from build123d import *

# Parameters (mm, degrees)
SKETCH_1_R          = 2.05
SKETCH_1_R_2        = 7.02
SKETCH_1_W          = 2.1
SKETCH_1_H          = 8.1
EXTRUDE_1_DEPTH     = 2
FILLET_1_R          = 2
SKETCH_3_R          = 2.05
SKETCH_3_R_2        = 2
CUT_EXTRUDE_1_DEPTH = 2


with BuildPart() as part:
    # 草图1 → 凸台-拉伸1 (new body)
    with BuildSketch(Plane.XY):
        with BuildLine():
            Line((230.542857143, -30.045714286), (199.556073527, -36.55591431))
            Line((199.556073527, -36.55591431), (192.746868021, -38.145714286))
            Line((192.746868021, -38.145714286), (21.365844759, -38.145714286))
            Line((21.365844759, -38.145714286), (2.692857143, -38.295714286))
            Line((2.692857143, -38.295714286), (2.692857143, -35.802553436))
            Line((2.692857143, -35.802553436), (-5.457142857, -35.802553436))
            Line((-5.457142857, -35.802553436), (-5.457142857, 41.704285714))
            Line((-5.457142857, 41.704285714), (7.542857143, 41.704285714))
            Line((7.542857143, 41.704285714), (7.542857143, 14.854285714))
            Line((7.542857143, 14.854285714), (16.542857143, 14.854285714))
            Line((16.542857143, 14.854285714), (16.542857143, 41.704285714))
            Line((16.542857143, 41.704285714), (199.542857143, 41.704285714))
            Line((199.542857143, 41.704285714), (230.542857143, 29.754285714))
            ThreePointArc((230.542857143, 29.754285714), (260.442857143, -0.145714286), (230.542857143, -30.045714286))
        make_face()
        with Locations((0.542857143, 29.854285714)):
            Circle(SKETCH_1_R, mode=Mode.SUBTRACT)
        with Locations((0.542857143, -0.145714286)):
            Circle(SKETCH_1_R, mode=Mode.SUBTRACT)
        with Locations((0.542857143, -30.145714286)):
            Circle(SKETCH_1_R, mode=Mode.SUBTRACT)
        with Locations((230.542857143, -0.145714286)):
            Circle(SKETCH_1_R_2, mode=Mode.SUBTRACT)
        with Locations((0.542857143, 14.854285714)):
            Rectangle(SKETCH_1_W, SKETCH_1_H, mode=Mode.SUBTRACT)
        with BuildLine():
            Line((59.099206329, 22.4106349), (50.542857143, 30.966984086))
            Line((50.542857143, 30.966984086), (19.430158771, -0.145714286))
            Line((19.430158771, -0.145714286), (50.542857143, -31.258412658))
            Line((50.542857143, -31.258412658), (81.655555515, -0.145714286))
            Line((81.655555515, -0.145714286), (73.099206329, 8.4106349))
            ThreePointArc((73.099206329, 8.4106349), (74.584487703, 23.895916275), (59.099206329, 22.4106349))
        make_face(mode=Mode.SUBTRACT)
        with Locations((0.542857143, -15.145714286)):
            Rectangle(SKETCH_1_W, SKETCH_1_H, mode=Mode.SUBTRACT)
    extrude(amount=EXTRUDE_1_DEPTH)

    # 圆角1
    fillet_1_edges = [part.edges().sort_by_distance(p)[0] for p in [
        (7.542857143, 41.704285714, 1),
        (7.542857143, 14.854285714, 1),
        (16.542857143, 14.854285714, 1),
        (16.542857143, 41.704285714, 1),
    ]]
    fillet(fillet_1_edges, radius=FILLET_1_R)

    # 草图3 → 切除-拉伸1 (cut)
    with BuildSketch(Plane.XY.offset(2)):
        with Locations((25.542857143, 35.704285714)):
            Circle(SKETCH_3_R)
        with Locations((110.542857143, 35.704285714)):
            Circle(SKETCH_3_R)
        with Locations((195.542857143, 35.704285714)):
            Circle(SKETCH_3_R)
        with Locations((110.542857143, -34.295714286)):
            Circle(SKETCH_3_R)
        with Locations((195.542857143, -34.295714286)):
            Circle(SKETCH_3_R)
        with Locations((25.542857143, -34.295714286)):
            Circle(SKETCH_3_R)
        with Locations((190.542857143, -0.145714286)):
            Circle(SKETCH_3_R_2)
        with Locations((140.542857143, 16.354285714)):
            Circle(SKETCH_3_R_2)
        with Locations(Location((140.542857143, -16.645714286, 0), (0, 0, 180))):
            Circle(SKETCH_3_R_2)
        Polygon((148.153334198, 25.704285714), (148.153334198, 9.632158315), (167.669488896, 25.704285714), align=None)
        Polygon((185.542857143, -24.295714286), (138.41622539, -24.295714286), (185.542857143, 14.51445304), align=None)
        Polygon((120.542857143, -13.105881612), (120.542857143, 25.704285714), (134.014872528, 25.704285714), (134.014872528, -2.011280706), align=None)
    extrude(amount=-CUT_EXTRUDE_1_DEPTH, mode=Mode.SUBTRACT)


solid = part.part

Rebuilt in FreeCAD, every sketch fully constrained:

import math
import FreeCAD as App
import Part
import Sketcher


def edges_at(feature, points):
    """Names of the edges that pass closest to the given points."""
    edges = feature.Shape.Edges
    near = lambda p: min(range(len(edges)), key=lambda i: edges[i].distToShape(Part.Vertex(*p))[0])
    return sorted({f"Edge{near(p) + 1}" for p in points})


def add_polygon(sketch, points):
    """Adds a closed chain of lines whose ends are joined by coincident constraints."""
    first, n = sketch.GeometryCount, len(points)
    for a, b in zip(points, points[1:] + points[:1]):
        sketch.addGeometry(Part.LineSegment(App.Vector(*a, 0), App.Vector(*b, 0)), False)
    for i in range(n):
        sketch.addConstraint(Sketcher.Constraint("Coincident", first + i, 2, first + (i + 1) % n, 1))

doc = App.newDocument("Part")
body = doc.addObject("PartDesign::Body", "Body")

# Sketch on XY plane
sketch1 = body.newObject("Sketcher::SketchObject", "Sketch")
sketch1.AttachmentSupport = (doc.getObject("XY_Plane"), [""])
sketch1.MapMode = "FlatFace"
sketch1.addGeometry(Part.LineSegment(App.Vector(199.6, -36.6, 0), App.Vector(230.5, -30, 0)), False)  # 0
sketch1.addGeometry(Part.ArcOfCircle(Part.Circle(App.Vector(230.5, -0.1, 0), App.Vector(0, 0, 1), 29.9), math.radians(-90), math.radians(90)), False)  # 1
sketch1.addGeometry(Part.LineSegment(App.Vector(230.5, 29.8, 0), App.Vector(199.5, 41.7, 0)), False)  # 2
sketch1.addGeometry(Part.LineSegment(App.Vector(199.5, 41.7, 0), App.Vector(16.5, 41.7, 0)), False)  # 3
sketch1.addGeometry(Part.LineSegment(App.Vector(16.5, 41.7, 0), App.Vector(16.5, 14.9, 0)), False)  # 4
sketch1.addGeometry(Part.LineSegment(App.Vector(16.5, 14.9, 0), App.Vector(7.5, 14.9, 0)), False)  # 5
sketch1.addGeometry(Part.LineSegment(App.Vector(7.5, 14.9, 0), App.Vector(7.5, 41.7, 0)), False)  # 6
sketch1.addGeometry(Part.LineSegment(App.Vector(7.5, 41.7, 0), App.Vector(-5.5, 41.7, 0)), False)  # 7
sketch1.addGeometry(Part.LineSegment(App.Vector(-5.5, 41.7, 0), App.Vector(-5.5, -35.8, 0)), False)  # 8
sketch1.addGeometry(Part.LineSegment(App.Vector(-5.5, -35.8, 0), App.Vector(2.7, -35.8, 0)), False)  # 9
sketch1.addGeometry(Part.LineSegment(App.Vector(2.7, -35.8, 0), App.Vector(2.7, -38.3, 0)), False)  # 10
sketch1.addGeometry(Part.LineSegment(App.Vector(2.7, -38.3, 0), App.Vector(21.4, -38.1, 0)), False)  # 11
sketch1.addGeometry(Part.LineSegment(App.Vector(21.4, -38.1, 0), App.Vector(192.7, -38.1, 0)), False)  # 12
sketch1.addGeometry(Part.LineSegment(App.Vector(192.7, -38.1, 0), App.Vector(199.6, -36.6, 0)), False)  # 13
sketch1.addGeometry(Part.Circle(App.Vector(0.5, -30.1, 0), App.Vector(0, 0, 1), 2), False)  # 14
add_polygon(sketch1, [(-0.5, -19.2), (-0.5, -11.1), (1.6, -11.1), (1.6, -19.2)])  # lines 15-18
sketch1.addGeometry(Part.Circle(App.Vector(230.5, -0.1, 0), App.Vector(0, 0, 1), 7), False)  # 19
sketch1.addGeometry(Part.ArcOfCircle(Part.Circle(App.Vector(67.5, 16.8, 0), App.Vector(0, 0, 1), 10.1), math.radians(-56), math.radians(146)), False)  # 20
sketch1.addGeometry(Part.LineSegment(App.Vector(73.1, 8.4, 0), App.Vector(81.7, -0.1, 0)), False)  # 21
sketch1.addGeometry(Part.LineSegment(App.Vector(81.7, -0.1, 0), App.Vector(50.5, -31.3, 0)), False)  # 22
sketch1.addGeometry(Part.LineSegment(App.Vector(50.5, -31.3, 0), App.Vector(19.4, -0.1, 0)), False)  # 23
sketch1.addGeometry(Part.LineSegment(App.Vector(19.4, -0.1, 0), App.Vector(50.5, 31, 0)), False)  # 24
sketch1.addGeometry(Part.LineSegment(App.Vector(50.5, 31, 0), App.Vector(59.1, 22.4, 0)), False)  # 25
sketch1.addGeometry(Part.Circle(App.Vector(0.5, -0.1, 0), App.Vector(0, 0, 1), 2), False)  # 26
add_polygon(sketch1, [(-0.5, 10.8), (-0.5, 18.9), (1.6, 18.9), (1.6, 10.8)])  # lines 27-30
sketch1.addGeometry(Part.Circle(App.Vector(0.5, 29.9, 0), App.Vector(0, 0, 1), 2), False)  # 31
sketch1.addConstraint([
    Sketcher.Constraint("Coincident", 0, 2, 1, 1),
    Sketcher.Constraint("Coincident", 1, 2, 2, 1),
    Sketcher.Constraint("Coincident", 2, 2, 3, 1),
    Sketcher.Constraint("Coincident", 3, 2, 4, 1),
    Sketcher.Constraint("Coincident", 4, 2, 5, 1),
    Sketcher.Constraint("Coincident", 5, 2, 6, 1),
    Sketcher.Constraint("Coincident", 6, 2, 7, 1),
    Sketcher.Constraint("Coincident", 7, 2, 8, 1),
    Sketcher.Constraint("Coincident", 8, 2, 9, 1),
    Sketcher.Constraint("Coincident", 9, 2, 10, 1),
    Sketcher.Constraint("Coincident", 10, 2, 11, 1),
    Sketcher.Constraint("Coincident", 11, 2, 12, 1),
    Sketcher.Constraint("Coincident", 12, 2, 13, 1),
    Sketcher.Constraint("Coincident", 13, 2, 0, 1),
    Sketcher.Constraint("Coincident", 20, 1, 21, 1),
    Sketcher.Constraint("Coincident", 21, 2, 22, 1),
    Sketcher.Constraint("Coincident", 22, 2, 23, 1),
    Sketcher.Constraint("Coincident", 23, 2, 24, 1),
    Sketcher.Constraint("Coincident", 24, 2, 25, 1),
    Sketcher.Constraint("Coincident", 25, 2, 20, 2),
    Sketcher.Constraint("Horizontal", 3),
    Sketcher.Constraint("Vertical", 4),
    Sketcher.Constraint("Horizontal", 5),
    Sketcher.Constraint("Vertical", 6),
    Sketcher.Constraint("Horizontal", 7),
    Sketcher.Constraint("Vertical", 8),
    Sketcher.Constraint("Horizontal", 9),
    Sketcher.Constraint("Vertical", 10),
    Sketcher.Constraint("Horizontal", 12),
    Sketcher.Constraint("Vertical", 15),
    Sketcher.Constraint("Horizontal", 16),
    Sketcher.Constraint("Vertical", 17),
    Sketcher.Constraint("Horizontal", 18),
    Sketcher.Constraint("Vertical", 27),
    Sketcher.Constraint("Horizontal", 28),
    Sketcher.Constraint("Vertical", 29),
    Sketcher.Constraint("Horizontal", 30),
    Sketcher.Constraint("Coincident", 19, 3, 1, 3),
    Sketcher.Constraint("Equal", 14, 26),
    Sketcher.Constraint("Equal", 26, 31),
    Sketcher.Constraint("Perpendicular", 21, 22),
    Sketcher.Constraint("Perpendicular", 22, 23),
    Sketcher.Constraint("Perpendicular", 23, 24),
    Sketcher.Constraint("Perpendicular", 24, 25),
    Sketcher.Constraint("Horizontal", 19, 3, 26, 3),
    Sketcher.Constraint("Horizontal", 3, 2, 6, 2),
    Sketcher.Constraint("Horizontal", 26, 3, 21, 2),
    Sketcher.Constraint("Horizontal", 21, 2, 23, 2),
    Sketcher.Constraint("Vertical", 14, 3, 26, 3),
    Sketcher.Constraint("Vertical", 26, 3, 31, 3),
    Sketcher.Constraint("Vertical", 19, 3, 0, 2),
    Sketcher.Constraint("Vertical", 0, 2, 1, 2),
    Sketcher.Constraint("Vertical", 22, 2, 24, 2),
    Sketcher.Constraint("Vertical", 18, 2, 27, 2),
    Sketcher.Constraint("Vertical", 17, 2, 28, 2),
    Sketcher.Constraint("Equal", 17, 27),
    Sketcher.Constraint("Equal", 22, 23),
    Sketcher.Constraint("Equal", 21, 25),
    Sketcher.Constraint("Diameter", 14, 4.1),
    Sketcher.Constraint("Radius", 1, 29.9),
    Sketcher.Constraint("Diameter", 19, 14.04),
    Sketcher.Constraint("DistanceX", 3, 2, 3, 1, 183.0),
    Sketcher.Constraint("DistanceX", 5, 2, 5, 1, 9.0),
    Sketcher.Constraint("DistanceX", 7, 2, 7, 1, 13.0),
    Sketcher.Constraint("Distance", 22, 44.0),
    Sketcher.Constraint("DistanceX", 16, 1, 16, 2, 2.1),
    Sketcher.Constraint("DistanceY", 15, 1, 15, 2, 8.1),
    Sketcher.Constraint("DistanceX", 14, 3, 1, 3, 230.0),
    Sketcher.Constraint("DistanceY", 14, 3, 1, 3, 30.0),
    Sketcher.Constraint("DistanceY", 26, 3, 31, 3, 30.0),
    Sketcher.Constraint("DistanceX", 2, 2, 1, 2, 31.0),
    Sketcher.Constraint("DistanceY", 26, 3, 4, 2, 15.0),
    Sketcher.Constraint("DistanceY", 11, 2, 14, 3, 8.0),
    Sketcher.Constraint("DistanceX", 3, 2, 24, 2, 34.0),
    Sketcher.Constraint("DistanceX", 25, 2, 20, 1, 14.0),
    Sketcher.Constraint("DistanceX", 9, 1, 9, 2, 8.15),
    Sketcher.Constraint("DistanceY", 4, 2, 4, 1, 26.85),
    Sketcher.Constraint("DistanceX", 15, 2, 9, 2, 3.2),
    Sketcher.Constraint("DistanceY", 27, 2, 7, 2, 22.8),
    Sketcher.Constraint("DistanceY", 10, 2, 14, 3, 8.15),
    Sketcher.Constraint("DistanceY", 15, 2, 26, 3, 10.95),
    Sketcher.Constraint("Radius", 20, 10.083333),
    Sketcher.Constraint("DistanceY", 8, 2, 8, 1, 77.506839),
    Sketcher.Constraint("DistanceY", 12, 2, 13, 2, 1.5898),
    Sketcher.Constraint("Distance", 11, 18.67359),
    Sketcher.Constraint("DistanceX", 12, 1, 12, 2, 171.381023),
    Sketcher.Constraint("DistanceX", -1, 1, 12, 2, 192.746868),
    Sketcher.Constraint("Distance", 0, 31.663283),
    Sketcher.Constraint("DistanceY", 1, 3, -1, 1, 0.145714),
])
pad1 = body.newObject("PartDesign::Pad", "Pad")
pad1.Profile = sketch1
pad1.Length = 2
doc.recompute()

fillet = body.newObject("PartDesign::Fillet", "Fillet")
fillet.Base = (pad1, edges_at(pad1, [
    (7.543, 41.704, 1),
    (7.543, 14.854, 1),
    (16.543, 14.854, 1),
    (16.543, 41.704, 1),
]))
fillet.Radius = 2

# Sketch on XY plane
sketch2 = body.newObject("Sketcher::SketchObject", "Sketch001")
sketch2.AttachmentSupport = (doc.getObject("XY_Plane"), [""])
sketch2.MapMode = "FlatFace"
sketch2.AttachmentOffset = App.Placement(App.Vector(0, 0, 2), App.Rotation())
sketch2.addGeometry(Part.Circle(App.Vector(25.5, 35.7, 0), App.Vector(0, 0, 1), 2), False)  # 0
sketch2.addGeometry(Part.Circle(App.Vector(110.5, 35.7, 0), App.Vector(0, 0, 1), 2), False)  # 1
sketch2.addGeometry(Part.Circle(App.Vector(195.5, 35.7, 0), App.Vector(0, 0, 1), 2), False)  # 2
sketch2.addGeometry(Part.Circle(App.Vector(110.5, -34.3, 0), App.Vector(0, 0, 1), 2), False)  # 3
sketch2.addGeometry(Part.Circle(App.Vector(195.5, -34.3, 0), App.Vector(0, 0, 1), 2), False)  # 4
sketch2.addGeometry(Part.Circle(App.Vector(25.5, -34.3, 0), App.Vector(0, 0, 1), 2), False)  # 5
sketch2.addGeometry(Part.Circle(App.Vector(190.5, -0.1, 0), App.Vector(0, 0, 1), 2), False)  # 6
sketch2.addGeometry(Part.Circle(App.Vector(140.5, 16.4, 0), App.Vector(0, 0, 1), 2), False)  # 7
sketch2.addGeometry(Part.Circle(App.Vector(140.5, -16.6, 0), App.Vector(0, 0, 1), 2), False)  # 8
add_polygon(sketch2, [(148.2, 25.7), (148.2, 9.6), (167.7, 25.7)])  # lines 9-11
add_polygon(sketch2, [(138.4, -24.3), (185.5, -24.3), (185.5, 14.5)])  # lines 12-14
add_polygon(sketch2, [(120.5, 25.7), (120.5, -13.1), (134, -2), (134, 25.7)])  # lines 15-18
sketch2.addConstraint([
    Sketcher.Constraint("Vertical", 9),
    Sketcher.Constraint("Horizontal", 11),
    Sketcher.Constraint("Horizontal", 12),
    Sketcher.Constraint("Vertical", 13),
    Sketcher.Constraint("Vertical", 15),
    Sketcher.Constraint("Vertical", 17),
    Sketcher.Constraint("Horizontal", 18),
    Sketcher.Constraint("Equal", 0, 1),
    Sketcher.Constraint("Equal", 1, 2),
    Sketcher.Constraint("Equal", 2, 3),
    Sketcher.Constraint("Equal", 3, 4),
    Sketcher.Constraint("Equal", 4, 5),
    Sketcher.Constraint("Equal", 6, 7),
    Sketcher.Constraint("Equal", 7, 8),
    Sketcher.Constraint("Parallel", 10, 14),
    Sketcher.Constraint("Parallel", 14, 16),
    Sketcher.Constraint("Horizontal", 0, 3, 1, 3),
    Sketcher.Constraint("Horizontal", 1, 3, 2, 3),
    Sketcher.Constraint("Horizontal", 3, 3, 4, 3),
    Sketcher.Constraint("Horizontal", 4, 3, 5, 3),
    Sketcher.Constraint("Horizontal", 11, 2, 17, 2),
    Sketcher.Constraint("Vertical", 1, 3, 3, 3),
    Sketcher.Constraint("Vertical", 2, 3, 4, 3),
    Sketcher.Constraint("Vertical", 0, 3, 5, 3),
    Sketcher.Constraint("Vertical", 7, 3, 8, 3),
    Sketcher.Constraint("Equal", 13, 15),
    Sketcher.Constraint("Diameter", 6, 4.0),
    Sketcher.Constraint("Diameter", 0, 4.1),
    Sketcher.Constraint("DistanceX", 0, 3, 1, 3, 85.0),
    Sketcher.Constraint("DistanceX", 1, 3, 2, 3, 85.0),
    Sketcher.Constraint("DistanceY", 3, 3, 1, 3, 70.0),
    Sketcher.Constraint("DistanceX", 6, 3, 4, 3, 5.0),
    Sketcher.Constraint("DistanceX", 1, 3, 7, 3, 30.0),
    Sketcher.Constraint("DistanceY", 8, 3, 7, 3, 33.0),
    Sketcher.Constraint("DistanceY", 10, 2, 2, 3, 10.0),
    Sketcher.Constraint("DistanceX", 12, 2, 4, 3, 10.0),
    Sketcher.Constraint("DistanceY", 4, 3, 12, 2, 10.0),
    Sketcher.Constraint("DistanceX", 15, 2, 8, 3, 20.0),
    Sketcher.Constraint("DistanceY", 6, 3, 7, 3, 16.5),
    Sketcher.Constraint("DistanceY", 4, 3, 6, 3, 34.15),
    Sketcher.Constraint("DistanceX", 12, 1, 12, 2, 47.126632),
    Sketcher.Constraint("DistanceY", 15, 2, 16, 2, 11.094601),
    Sketcher.Constraint("DistanceX", 11, 2, 11, 1, 19.516155),
    Sketcher.Constraint("DistanceX", 18, 2, 18, 1, 13.472015),
    Sketcher.Constraint("DistanceY", -1, 1, 9, 2, 9.632158),
    Sketcher.Constraint("DistanceX", -1, 1, 10, 2, 167.669489),
    Sketcher.Constraint("DistanceX", 7, 3, 10, 2, 27.126632),
])
pocket1 = body.newObject("PartDesign::Pocket", "Pocket")
pocket1.Profile = sketch2
pocket1.Length = 2

doc.recompute()
